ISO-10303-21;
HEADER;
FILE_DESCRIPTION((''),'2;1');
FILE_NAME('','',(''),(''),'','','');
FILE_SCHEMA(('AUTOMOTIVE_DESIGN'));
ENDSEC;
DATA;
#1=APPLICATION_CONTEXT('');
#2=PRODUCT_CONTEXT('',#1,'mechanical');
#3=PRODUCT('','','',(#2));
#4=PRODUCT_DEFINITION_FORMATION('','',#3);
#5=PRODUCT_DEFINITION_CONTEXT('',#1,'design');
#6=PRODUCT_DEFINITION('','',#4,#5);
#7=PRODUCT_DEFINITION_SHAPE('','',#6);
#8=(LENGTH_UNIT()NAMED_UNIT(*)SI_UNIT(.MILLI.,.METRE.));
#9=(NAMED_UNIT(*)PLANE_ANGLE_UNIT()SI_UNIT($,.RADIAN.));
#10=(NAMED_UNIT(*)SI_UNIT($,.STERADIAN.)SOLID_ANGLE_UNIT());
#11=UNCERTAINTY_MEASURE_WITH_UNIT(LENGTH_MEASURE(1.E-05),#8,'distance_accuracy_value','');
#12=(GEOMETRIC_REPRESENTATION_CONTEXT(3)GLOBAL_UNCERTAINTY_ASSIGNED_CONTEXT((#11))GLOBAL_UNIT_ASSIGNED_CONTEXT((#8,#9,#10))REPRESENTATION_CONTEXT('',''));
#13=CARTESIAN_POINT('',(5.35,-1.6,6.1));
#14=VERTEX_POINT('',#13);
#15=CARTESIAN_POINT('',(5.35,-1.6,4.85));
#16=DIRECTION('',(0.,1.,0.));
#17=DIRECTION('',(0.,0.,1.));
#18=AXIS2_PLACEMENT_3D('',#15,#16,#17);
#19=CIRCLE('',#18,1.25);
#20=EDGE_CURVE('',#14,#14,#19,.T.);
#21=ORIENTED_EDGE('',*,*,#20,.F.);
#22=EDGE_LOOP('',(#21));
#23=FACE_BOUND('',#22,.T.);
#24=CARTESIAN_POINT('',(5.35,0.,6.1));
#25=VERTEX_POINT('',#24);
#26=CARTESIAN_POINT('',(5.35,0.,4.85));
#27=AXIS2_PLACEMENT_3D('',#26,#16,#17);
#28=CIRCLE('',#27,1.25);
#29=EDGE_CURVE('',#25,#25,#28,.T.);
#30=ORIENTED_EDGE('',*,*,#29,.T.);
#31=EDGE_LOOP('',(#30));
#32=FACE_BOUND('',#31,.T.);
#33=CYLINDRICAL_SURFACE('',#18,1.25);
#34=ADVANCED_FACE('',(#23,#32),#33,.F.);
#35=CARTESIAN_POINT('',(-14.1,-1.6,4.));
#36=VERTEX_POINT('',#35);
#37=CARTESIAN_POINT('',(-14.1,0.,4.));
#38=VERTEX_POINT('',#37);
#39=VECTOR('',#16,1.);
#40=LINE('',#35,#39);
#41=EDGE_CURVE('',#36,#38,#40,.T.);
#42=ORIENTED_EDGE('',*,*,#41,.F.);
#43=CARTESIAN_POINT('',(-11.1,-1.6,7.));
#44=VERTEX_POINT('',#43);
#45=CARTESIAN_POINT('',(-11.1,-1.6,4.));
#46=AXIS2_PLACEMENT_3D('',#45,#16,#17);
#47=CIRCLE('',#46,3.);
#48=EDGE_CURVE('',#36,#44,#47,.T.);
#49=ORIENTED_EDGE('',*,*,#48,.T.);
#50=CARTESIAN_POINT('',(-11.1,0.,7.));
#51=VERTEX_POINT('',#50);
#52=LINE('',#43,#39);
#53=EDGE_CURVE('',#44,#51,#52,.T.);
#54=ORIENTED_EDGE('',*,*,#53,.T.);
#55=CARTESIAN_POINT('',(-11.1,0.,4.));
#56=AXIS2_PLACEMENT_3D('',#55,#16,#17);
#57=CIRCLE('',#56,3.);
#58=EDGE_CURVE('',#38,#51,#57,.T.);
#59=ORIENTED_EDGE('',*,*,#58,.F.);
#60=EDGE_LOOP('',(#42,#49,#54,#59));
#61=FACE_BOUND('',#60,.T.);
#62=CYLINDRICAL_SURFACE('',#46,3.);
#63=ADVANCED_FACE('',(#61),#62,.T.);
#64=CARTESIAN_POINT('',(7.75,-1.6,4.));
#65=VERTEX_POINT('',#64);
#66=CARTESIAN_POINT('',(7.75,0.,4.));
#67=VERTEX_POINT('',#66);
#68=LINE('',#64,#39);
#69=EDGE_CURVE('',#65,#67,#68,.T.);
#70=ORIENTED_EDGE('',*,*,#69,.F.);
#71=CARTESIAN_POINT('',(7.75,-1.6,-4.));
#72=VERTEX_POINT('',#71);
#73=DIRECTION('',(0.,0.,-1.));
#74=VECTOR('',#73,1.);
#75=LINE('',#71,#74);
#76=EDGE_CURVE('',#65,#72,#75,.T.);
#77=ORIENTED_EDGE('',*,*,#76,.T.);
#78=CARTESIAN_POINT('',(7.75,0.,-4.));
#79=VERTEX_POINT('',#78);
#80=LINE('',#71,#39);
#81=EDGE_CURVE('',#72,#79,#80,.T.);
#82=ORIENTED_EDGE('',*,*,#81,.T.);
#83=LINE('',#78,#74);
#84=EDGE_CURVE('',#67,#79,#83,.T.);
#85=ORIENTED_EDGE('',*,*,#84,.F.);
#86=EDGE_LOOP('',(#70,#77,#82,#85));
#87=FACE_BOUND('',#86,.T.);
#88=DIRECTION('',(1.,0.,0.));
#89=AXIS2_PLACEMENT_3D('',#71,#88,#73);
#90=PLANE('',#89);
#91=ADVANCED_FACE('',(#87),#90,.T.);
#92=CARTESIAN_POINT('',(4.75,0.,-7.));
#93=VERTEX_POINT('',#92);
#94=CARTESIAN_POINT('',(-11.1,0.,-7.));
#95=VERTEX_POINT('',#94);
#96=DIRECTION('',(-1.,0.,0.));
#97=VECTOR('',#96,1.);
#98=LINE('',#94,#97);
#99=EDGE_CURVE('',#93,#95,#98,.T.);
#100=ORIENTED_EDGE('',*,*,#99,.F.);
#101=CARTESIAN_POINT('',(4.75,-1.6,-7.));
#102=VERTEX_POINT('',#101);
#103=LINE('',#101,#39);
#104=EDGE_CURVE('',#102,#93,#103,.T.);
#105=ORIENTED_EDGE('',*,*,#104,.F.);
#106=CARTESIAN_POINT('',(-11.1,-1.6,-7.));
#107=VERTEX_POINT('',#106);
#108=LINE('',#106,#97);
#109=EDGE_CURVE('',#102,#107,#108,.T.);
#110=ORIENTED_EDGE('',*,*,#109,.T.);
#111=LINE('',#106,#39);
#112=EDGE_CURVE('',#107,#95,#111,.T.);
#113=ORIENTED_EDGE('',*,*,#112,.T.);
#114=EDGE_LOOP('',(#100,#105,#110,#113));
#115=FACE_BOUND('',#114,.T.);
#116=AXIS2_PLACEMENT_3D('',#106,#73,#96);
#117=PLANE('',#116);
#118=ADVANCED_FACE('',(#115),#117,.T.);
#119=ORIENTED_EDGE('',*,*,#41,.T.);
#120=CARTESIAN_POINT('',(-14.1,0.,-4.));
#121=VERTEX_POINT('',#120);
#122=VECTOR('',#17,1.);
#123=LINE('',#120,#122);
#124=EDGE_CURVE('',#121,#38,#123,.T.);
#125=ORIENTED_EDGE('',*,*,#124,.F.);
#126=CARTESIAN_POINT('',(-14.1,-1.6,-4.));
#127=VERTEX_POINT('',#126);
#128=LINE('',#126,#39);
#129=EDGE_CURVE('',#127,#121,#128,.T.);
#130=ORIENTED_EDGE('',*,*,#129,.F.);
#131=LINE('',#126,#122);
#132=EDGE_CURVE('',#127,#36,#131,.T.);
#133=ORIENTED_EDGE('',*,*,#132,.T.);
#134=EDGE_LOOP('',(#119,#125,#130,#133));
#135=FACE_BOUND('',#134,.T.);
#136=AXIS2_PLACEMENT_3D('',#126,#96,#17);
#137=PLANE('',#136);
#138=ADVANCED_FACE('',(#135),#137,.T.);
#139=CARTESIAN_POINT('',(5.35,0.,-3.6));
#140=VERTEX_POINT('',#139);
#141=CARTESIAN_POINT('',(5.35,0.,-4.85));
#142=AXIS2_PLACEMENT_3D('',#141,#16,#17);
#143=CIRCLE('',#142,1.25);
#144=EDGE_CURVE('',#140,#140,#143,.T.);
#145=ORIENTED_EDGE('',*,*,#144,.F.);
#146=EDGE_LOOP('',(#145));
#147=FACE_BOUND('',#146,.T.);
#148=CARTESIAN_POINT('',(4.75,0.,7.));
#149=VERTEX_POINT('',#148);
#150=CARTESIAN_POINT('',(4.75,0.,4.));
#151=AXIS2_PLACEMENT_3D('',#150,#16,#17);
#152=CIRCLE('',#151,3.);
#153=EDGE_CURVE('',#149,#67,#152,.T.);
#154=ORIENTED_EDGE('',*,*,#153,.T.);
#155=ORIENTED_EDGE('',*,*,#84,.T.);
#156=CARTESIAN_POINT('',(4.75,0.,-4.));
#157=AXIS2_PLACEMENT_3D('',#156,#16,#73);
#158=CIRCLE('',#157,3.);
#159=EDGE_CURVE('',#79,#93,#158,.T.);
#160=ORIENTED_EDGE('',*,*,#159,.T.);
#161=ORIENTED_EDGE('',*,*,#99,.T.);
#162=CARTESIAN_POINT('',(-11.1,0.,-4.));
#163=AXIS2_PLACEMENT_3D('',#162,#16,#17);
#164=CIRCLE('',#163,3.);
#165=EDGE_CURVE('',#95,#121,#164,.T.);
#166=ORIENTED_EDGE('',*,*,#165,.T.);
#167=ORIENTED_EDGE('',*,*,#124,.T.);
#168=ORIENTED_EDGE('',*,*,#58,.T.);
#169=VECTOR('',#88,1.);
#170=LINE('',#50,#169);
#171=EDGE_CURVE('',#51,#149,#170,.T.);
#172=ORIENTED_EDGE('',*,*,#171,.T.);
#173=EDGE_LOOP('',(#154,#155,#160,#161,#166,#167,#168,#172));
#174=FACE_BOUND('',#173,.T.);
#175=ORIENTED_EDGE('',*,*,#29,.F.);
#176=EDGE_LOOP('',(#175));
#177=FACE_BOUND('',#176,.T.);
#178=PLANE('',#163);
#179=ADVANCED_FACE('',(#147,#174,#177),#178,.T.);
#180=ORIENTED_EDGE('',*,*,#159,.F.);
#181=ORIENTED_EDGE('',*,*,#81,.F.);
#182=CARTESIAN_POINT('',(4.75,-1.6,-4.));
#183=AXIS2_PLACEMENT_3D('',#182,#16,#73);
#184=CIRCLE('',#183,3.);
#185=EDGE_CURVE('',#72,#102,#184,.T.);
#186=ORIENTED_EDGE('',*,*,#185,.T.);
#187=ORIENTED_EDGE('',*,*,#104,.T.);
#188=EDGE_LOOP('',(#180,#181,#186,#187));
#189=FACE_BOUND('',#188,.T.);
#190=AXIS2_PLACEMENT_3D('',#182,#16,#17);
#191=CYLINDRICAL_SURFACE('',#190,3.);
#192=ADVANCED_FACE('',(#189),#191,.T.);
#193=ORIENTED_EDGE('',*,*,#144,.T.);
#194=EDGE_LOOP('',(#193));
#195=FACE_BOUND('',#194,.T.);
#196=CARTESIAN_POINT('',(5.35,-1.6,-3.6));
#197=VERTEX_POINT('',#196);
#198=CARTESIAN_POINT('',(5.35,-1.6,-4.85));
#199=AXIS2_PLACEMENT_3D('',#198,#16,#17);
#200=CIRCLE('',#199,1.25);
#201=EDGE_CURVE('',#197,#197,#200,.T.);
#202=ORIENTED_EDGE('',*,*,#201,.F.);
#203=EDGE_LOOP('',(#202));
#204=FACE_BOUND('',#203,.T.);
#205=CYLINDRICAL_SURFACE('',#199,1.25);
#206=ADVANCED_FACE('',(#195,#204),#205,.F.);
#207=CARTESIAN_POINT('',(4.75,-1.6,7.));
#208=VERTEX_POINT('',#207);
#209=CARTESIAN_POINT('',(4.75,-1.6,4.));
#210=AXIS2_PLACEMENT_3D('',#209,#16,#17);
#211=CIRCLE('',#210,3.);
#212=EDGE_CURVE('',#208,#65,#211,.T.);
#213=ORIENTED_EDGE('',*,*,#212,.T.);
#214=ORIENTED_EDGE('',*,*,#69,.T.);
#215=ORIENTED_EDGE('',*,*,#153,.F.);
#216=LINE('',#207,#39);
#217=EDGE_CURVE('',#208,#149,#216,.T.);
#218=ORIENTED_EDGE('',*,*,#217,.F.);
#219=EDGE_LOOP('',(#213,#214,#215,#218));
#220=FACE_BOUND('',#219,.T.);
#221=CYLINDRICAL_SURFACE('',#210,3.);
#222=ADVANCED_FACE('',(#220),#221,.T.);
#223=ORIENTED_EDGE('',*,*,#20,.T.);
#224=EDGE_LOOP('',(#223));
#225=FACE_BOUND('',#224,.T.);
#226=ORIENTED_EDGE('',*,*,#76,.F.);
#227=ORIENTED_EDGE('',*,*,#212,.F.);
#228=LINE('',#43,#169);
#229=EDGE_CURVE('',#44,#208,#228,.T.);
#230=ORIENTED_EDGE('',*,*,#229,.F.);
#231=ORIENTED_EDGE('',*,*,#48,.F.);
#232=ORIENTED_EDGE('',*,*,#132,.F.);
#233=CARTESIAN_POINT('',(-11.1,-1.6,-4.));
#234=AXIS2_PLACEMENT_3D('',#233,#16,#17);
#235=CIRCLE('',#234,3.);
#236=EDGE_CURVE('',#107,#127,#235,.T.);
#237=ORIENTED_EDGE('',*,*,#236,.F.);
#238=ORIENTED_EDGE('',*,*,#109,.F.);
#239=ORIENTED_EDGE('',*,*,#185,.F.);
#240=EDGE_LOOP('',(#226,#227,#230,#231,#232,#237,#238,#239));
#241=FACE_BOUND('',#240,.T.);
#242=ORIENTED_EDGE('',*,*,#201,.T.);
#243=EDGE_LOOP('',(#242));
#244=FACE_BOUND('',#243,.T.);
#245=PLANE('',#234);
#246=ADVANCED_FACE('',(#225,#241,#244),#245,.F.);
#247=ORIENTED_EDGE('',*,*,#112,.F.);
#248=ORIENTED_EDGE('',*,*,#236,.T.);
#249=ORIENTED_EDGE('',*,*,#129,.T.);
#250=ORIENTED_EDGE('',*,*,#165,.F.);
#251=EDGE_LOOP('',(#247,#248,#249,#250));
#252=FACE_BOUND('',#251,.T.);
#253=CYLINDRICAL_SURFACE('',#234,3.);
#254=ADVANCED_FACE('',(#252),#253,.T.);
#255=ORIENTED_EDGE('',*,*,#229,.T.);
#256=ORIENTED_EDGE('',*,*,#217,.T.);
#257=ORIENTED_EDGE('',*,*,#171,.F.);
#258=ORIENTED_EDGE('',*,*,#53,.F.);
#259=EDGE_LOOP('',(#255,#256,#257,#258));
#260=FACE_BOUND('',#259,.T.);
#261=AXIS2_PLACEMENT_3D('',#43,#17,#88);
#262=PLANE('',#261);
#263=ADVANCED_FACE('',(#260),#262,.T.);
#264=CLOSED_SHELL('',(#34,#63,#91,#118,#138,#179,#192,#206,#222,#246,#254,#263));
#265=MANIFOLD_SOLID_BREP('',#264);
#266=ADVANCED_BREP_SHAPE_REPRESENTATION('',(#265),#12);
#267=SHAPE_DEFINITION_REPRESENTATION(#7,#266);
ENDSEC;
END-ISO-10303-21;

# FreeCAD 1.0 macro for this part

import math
import FreeCAD as App
import Part
import Sketcher
from FreeCAD import Vector

doc = App.newDocument("Part")
body = doc.addObject("PartDesign::Body", "Body")

sketch1 = body.newObject("Sketcher::SketchObject", "Sketch")
sketch1.AttachmentSupport = (doc.getObject("XZ_Plane"), [""])
sketch1.MapMode = "FlatFace"
sketch1.addGeometry(Part.LineSegment(Vector(4.75, -7, 0), Vector(-11.1, -7, 0)), False)
sketch1.addGeometry(Part.ArcOfCircle(Part.Circle(Vector(-11.1, -4, 0), Vector(0, 0, 1), 3), math.radians(180), math.radians(270)), False)
sketch1.addGeometry(Part.LineSegment(Vector(-14.1, -4, 0), Vector(-14.1, 4, 0)), False)
sketch1.addGeometry(Part.ArcOfCircle(Part.Circle(Vector(-11.1, 4, 0), Vector(0, 0, 1), 3), math.radians(90), math.radians(180)), False)
sketch1.addGeometry(Part.LineSegment(Vector(-11.1, 7, 0), Vector(4.75, 7, 0)), False)
sketch1.addGeometry(Part.ArcOfCircle(Part.Circle(Vector(4.75, 4, 0), Vector(0, 0, 1), 3), math.radians(0), math.radians(90)), False)
sketch1.addGeometry(Part.LineSegment(Vector(7.75, 4, 0), Vector(7.75, -4, 0)), False)
sketch1.addGeometry(Part.ArcOfCircle(Part.Circle(Vector(4.75, -4, 0), Vector(0, 0, 1), 3), math.radians(-90), math.radians(0)), False)
sketch1.addGeometry(Part.Circle(Vector(5.35, 4.85, 0), Vector(0, 0, 1), 1.25), False)
sketch1.addGeometry(Part.Circle(Vector(5.35, -4.85, 0), Vector(0, 0, 1), 1.25), False)
sketch1.addConstraint(Sketcher.Constraint("Tangent", 0, 2, 1, 2))
sketch1.addConstraint(Sketcher.Constraint("Tangent", 1, 1, 2, 1))
sketch1.addConstraint(Sketcher.Constraint("Tangent", 2, 2, 3, 2))
sketch1.addConstraint(Sketcher.Constraint("Tangent", 3, 1, 4, 1))
sketch1.addConstraint(Sketcher.Constraint("Tangent", 4, 2, 5, 2))
sketch1.addConstraint(Sketcher.Constraint("Tangent", 5, 1, 6, 1))
sketch1.addConstraint(Sketcher.Constraint("Tangent", 6, 2, 7, 2))
sketch1.addConstraint(Sketcher.Constraint("Tangent", 7, 1, 0, 1))
sketch1.addConstraint(Sketcher.Constraint("Horizontal", 0))
sketch1.addConstraint(Sketcher.Constraint("Vertical", 2))
sketch1.addConstraint(Sketcher.Constraint("Horizontal", 4))
sketch1.addConstraint(Sketcher.Constraint("Vertical", 6))
sketch1.addConstraint(Sketcher.Constraint("Equal", 1, 3))
sketch1.addConstraint(Sketcher.Constraint("Equal", 3, 5))
sketch1.addConstraint(Sketcher.Constraint("Equal", 5, 7))
sketch1.addConstraint(Sketcher.Constraint("Equal", 8, 9))
sketch1.addConstraint(Sketcher.Constraint("Symmetric", 8, 3, 9, 3, -1))
sketch1.addConstraint(Sketcher.Constraint("Radius", 1, 3.0))
sketch1.addConstraint(Sketcher.Constraint("Diameter", 8, 2.5))
sketch1.addConstraint(Sketcher.Constraint("DistanceY", 2, 1, 2, 2, 8.0))
sketch1.addConstraint(Sketcher.Constraint("DistanceY", 1, 3, -1, 1, 4.0))
sketch1.addConstraint(Sketcher.Constraint("DistanceX", 0, 2, 0, 1, 15.85))
sketch1.addConstraint(Sketcher.Constraint("DistanceX", 1, 3, -1, 1, 11.1))
sketch1.addConstraint(Sketcher.Constraint("DistanceX", 5, 3, 8, 3, 0.6))
sketch1.addConstraint(Sketcher.Constraint("DistanceY", 9, 3, 8, 3, 9.7))
pad1 = body.newObject("PartDesign::Pad", "Pad")
pad1.Profile = sketch1
pad1.Length = 1.6

doc.recompute()
